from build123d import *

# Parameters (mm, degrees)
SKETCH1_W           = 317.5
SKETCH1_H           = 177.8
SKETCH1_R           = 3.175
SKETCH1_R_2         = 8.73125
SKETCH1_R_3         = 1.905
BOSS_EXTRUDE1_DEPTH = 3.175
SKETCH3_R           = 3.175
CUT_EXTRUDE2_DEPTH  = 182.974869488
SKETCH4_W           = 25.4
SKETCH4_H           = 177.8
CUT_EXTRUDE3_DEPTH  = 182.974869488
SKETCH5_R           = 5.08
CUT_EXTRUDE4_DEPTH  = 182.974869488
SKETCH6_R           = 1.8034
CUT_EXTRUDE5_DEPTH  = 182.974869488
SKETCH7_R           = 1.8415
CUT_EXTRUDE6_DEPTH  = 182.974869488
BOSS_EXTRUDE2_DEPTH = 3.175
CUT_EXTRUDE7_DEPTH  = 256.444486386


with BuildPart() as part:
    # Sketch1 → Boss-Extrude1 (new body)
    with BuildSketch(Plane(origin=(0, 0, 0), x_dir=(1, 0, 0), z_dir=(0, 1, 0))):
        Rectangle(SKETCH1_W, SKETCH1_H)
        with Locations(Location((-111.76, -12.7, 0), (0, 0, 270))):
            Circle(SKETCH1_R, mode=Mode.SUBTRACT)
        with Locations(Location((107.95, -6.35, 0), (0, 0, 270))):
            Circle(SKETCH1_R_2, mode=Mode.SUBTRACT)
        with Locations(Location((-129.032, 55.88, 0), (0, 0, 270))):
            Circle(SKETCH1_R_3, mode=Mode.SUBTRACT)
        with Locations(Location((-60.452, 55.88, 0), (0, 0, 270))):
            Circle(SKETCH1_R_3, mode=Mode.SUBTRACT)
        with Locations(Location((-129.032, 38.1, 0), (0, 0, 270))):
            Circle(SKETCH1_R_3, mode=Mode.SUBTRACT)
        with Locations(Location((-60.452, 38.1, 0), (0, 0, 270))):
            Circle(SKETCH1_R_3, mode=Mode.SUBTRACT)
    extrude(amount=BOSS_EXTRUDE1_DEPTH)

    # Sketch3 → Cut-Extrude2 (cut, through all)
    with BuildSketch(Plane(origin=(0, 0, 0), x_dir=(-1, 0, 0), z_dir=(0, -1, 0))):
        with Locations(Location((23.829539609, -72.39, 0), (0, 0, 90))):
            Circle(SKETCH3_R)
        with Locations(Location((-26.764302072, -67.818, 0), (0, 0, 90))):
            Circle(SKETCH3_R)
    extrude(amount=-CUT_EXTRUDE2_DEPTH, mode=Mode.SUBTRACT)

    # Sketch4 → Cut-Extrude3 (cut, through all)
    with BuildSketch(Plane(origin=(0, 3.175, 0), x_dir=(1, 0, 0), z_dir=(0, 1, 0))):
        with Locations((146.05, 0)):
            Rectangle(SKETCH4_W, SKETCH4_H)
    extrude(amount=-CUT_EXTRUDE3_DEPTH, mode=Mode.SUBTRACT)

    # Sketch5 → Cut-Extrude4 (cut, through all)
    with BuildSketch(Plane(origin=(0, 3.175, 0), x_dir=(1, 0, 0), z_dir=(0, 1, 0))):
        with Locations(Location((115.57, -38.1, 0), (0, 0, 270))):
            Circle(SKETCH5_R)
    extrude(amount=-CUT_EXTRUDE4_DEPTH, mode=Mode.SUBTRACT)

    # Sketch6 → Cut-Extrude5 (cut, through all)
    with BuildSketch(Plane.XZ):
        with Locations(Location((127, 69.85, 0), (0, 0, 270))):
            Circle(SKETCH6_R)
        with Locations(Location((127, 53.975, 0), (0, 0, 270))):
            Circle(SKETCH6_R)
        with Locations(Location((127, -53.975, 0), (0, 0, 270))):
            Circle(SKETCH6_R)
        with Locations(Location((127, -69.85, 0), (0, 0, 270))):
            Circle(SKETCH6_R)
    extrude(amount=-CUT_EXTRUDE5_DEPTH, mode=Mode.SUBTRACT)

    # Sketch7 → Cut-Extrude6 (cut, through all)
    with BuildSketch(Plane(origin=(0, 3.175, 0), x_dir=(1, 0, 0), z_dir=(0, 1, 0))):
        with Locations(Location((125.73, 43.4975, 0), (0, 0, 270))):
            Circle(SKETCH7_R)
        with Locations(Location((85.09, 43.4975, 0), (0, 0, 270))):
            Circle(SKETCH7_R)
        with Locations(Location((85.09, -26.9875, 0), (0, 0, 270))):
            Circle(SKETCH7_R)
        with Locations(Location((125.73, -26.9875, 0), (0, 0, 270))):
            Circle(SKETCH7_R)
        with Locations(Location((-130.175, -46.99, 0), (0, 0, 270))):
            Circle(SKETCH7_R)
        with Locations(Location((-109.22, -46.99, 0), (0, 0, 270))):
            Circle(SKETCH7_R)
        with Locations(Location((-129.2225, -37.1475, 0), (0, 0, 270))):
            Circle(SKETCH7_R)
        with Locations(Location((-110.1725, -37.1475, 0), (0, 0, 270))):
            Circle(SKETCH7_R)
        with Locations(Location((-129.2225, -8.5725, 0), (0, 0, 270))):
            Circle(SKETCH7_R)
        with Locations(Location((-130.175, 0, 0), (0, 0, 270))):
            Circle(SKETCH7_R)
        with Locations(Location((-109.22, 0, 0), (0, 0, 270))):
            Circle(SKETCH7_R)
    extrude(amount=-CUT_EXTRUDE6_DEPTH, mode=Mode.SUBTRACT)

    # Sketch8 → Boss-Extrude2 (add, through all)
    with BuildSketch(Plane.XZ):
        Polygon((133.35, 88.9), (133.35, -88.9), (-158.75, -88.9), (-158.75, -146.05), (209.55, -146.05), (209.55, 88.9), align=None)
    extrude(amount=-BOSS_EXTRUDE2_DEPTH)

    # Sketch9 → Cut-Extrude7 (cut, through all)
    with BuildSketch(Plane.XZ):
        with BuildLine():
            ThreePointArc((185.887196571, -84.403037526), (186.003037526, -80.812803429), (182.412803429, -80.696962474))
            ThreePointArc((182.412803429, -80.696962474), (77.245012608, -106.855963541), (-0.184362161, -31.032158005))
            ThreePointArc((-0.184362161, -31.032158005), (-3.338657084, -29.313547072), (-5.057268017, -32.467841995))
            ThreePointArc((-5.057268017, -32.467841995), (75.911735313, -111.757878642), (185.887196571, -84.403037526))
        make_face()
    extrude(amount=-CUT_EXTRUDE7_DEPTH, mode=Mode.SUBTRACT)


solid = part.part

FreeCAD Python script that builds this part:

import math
import FreeCAD as App
import Part
import Sketcher
Q = App.Units.Quantity

doc = App.newDocument("Part")
params = doc.addObject("Spreadsheet::Sheet", "Params")
for row, (alias, value) in enumerate([
    ("sketch1_diameter", "0.25 in"),
    ("sketch1_diameter2", "0.15 in"),
    ("sketch1_height", "7 in"),
    ("sketch1_diameter3", "0.6875 in"),
    ("sketch1_width", "12.5 in"),
    ("pad1_length", "0.125 in"),
    ("sketch2_diameter", "0.25 in"),
    ("sketch3_width", "1 in"),
    ("sketch3_height", "7 in"),
    ("sketch4_diameter", "0.4 in"),
    ("sketch5_diameter", "0.142 in"),
    ("sketch6_diameter", "0.145 in"),
    ("sketch7_width", "3 in"),
    ("sketch7_height", "7 in"),
    ("sketch7_width2", "11.5 in"),
    ("sketch7_height2", "2.25 in"),
    ("sketch8_radius", "0.1 in"),
    ("sketch8_radius2", "4.375 in"),
], start=1):
    params.set(f"A{row}", alias)
    params.set(f"B{row}", "=" + value)
    params.setAlias(f"B{row}", alias)

body = doc.addObject("PartDesign::Body", "Body")

sketch1 = body.newObject("Sketcher::SketchObject", "Sketch")
sketch1.AttachmentSupport = (doc.getObject("XZ_Plane"), [""])
sketch1.MapMode = "FlatFace"
sketch1.addGeometry([
    Part.LineSegment(App.Vector(-158.8, -88.9, 0), App.Vector(-158.8, 88.9, 0)),
    Part.LineSegment(App.Vector(-158.8, 88.9, 0), App.Vector(158.8, 88.9, 0)),
    Part.LineSegment(App.Vector(158.8, 88.9, 0), App.Vector(158.8, -88.9, 0)),
    Part.LineSegment(App.Vector(158.8, -88.9, 0), App.Vector(-158.8, -88.9, 0)),
    Part.Circle(App.Vector(-111.8, 12.7, 0), App.Vector(0, 0, 1), 3.2),
    Part.Circle(App.Vector(108, 6.3, 0), App.Vector(0, 0, 1), 8.7),
    Part.Circle(App.Vector(-129, -38.1, 0), App.Vector(0, 0, 1), 1.9),
    Part.Circle(App.Vector(-60.5, -38.1, 0), App.Vector(0, 0, 1), 1.9),
    Part.Circle(App.Vector(-129, -55.9, 0), App.Vector(0, 0, 1), 1.9),
    Part.Circle(App.Vector(-60.5, -55.9, 0), App.Vector(0, 0, 1), 1.9),
], False)
sketch1.addConstraint([
    Sketcher.Constraint("Coincident", 0, 2, 1, 1),
    Sketcher.Constraint("Coincident", 1, 2, 2, 1),
    Sketcher.Constraint("Coincident", 2, 2, 3, 1),
    Sketcher.Constraint("Coincident", 3, 2, 0, 1),
    Sketcher.Constraint("Vertical", 0),
    Sketcher.Constraint("Horizontal", 1),
    Sketcher.Constraint("Vertical", 2),
    Sketcher.Constraint("Horizontal", 3),
    Sketcher.Constraint("Equal", 6, 7),
    Sketcher.Constraint("Equal", 7, 8),
    Sketcher.Constraint("Equal", 8, 9),
    Sketcher.Constraint("Symmetric", 0, 2, 2, 2, -1, 1),
    Sketcher.Constraint("Horizontal", 6, 3, 7, 3),
    Sketcher.Constraint("Horizontal", 8, 3, 9, 3),
    Sketcher.Constraint("Vertical", 6, 3, 8, 3),
    Sketcher.Constraint("Vertical", 7, 3, 9, 3),
    Sketcher.Constraint("Diameter", 4, Q("0.25 in")),
    Sketcher.Constraint("Diameter", 6, Q("0.15 in")),
    Sketcher.Constraint("DistanceY", 0, 1, 0, 2, Q("7 in")),
    Sketcher.Constraint("Diameter", 5, Q("0.6875 in")),
    Sketcher.Constraint("DistanceX", 1, 1, 1, 2, Q("12.5 in")),
    Sketcher.Constraint("DistanceY", 6, 3, 4, 3, Q("2 in")),
    Sketcher.Constraint("DistanceY", 4, 3, 0, 2, Q("3 in")),
    Sketcher.Constraint("DistanceX", 5, 3, 1, 2, Q("2 in")),
    Sketcher.Constraint("DistanceX", 4, 3, -1, 1, Q("4.4 in")),
    Sketcher.Constraint("DistanceY", 8, 3, -1, 1, Q("2.2 in")),
    Sketcher.Constraint("DistanceX", 6, 3, 7, 3, Q("2.7 in")),
    Sketcher.Constraint("DistanceY", -1, 1, 5, 3, Q("0.25 in")),
    Sketcher.Constraint("DistanceX", 6, 3, -1, 1, Q("5.08 in")),
])
sketch1.setExpression("Constraints[16]", "Params.sketch1_diameter")
sketch1.setExpression("Constraints[17]", "Params.sketch1_diameter2")
sketch1.setExpression("Constraints[18]", "Params.sketch1_height")
sketch1.setExpression("Constraints[19]", "Params.sketch1_diameter3")
sketch1.setExpression("Constraints[20]", "Params.sketch1_width")
pad1 = body.newObject("PartDesign::Pad", "Pad")
pad1.Profile = sketch1
pad1.setExpression("Length", "Params.pad1_length")
pad1.Reversed = True

sketch2 = body.newObject("Sketcher::SketchObject", "Sketch001")
sketch2.AttachmentSupport = (doc.getObject("XZ_Plane"), [""])
sketch2.MapMode = "FlatFace"
sketch2.addGeometry([
    Part.Circle(App.Vector(-23.8, 72.4, 0), App.Vector(0, 0, 1), 3.2),
    Part.Circle(App.Vector(26.8, 67.8, 0), App.Vector(0, 0, 1), 3.2),
], False)
sketch2.addConstraint([
    Sketcher.Constraint("Equal", 0, 1),
    Sketcher.Constraint("Diameter", 0, Q("0.25 in")),
    Sketcher.Constraint("DistanceY", -1, 1, 0, 3, Q("2.85 in")),
    Sketcher.Constraint("DistanceY", -1, 1, 1, 3, Q("2.67 in")),
    Sketcher.Constraint("DistanceX", 0, 3, -1, 1, Q("23.82954 mm")),
    Sketcher.Constraint("DistanceX", 0, 3, 1, 3, Q("50.593842 mm")),
])
sketch2.setExpression("Constraints[1]", "Params.sketch2_diameter")
pocket1 = body.newObject("PartDesign::Pocket", "Pocket")
pocket1.Profile = sketch2
pocket1.Type = "ThroughAll"

sketch3 = body.newObject("Sketcher::SketchObject", "Sketch002")
sketch3.AttachmentSupport = (doc.getObject("XZ_Plane"), [""])
sketch3.MapMode = "FlatFace"
sketch3.AttachmentOffset = App.Placement(App.Vector(0, 0, -0.125 * 25.4), App.Rotation())
sketch3.addGeometry([
    Part.LineSegment(App.Vector(133, -89, 0), App.Vector(133, 89, 0)),
    Part.LineSegment(App.Vector(133, 89, 0), App.Vector(159, 89, 0)),
    Part.LineSegment(App.Vector(159, 89, 0), App.Vector(159, -89, 0)),
    Part.LineSegment(App.Vector(159, -89, 0), App.Vector(133, -89, 0)),
], False)
sketch3.addConstraint([
    Sketcher.Constraint("Coincident", 0, 2, 1, 1),
    Sketcher.Constraint("Coincident", 1, 2, 2, 1),
    Sketcher.Constraint("Coincident", 2, 2, 3, 1),
    Sketcher.Constraint("Coincident", 3, 2, 0, 1),
    Sketcher.Constraint("Vertical", 0),
    Sketcher.Constraint("Horizontal", 1),
    Sketcher.Constraint("Vertical", 2),
    Sketcher.Constraint("Horizontal", 3),
    Sketcher.Constraint("DistanceX", 1, 1, 1, 2, Q("1 in")),
    Sketcher.Constraint("DistanceY", 0, 1, 0, 2, Q("7 in")),
    Sketcher.Constraint("DistanceY", -1, 1, 0, 2, Q("3.5 in")),
    Sketcher.Constraint("DistanceX", -1, 1, 0, 2, Q("5.25 in")),
])
sketch3.setExpression("Constraints[8]", "Params.sketch3_width")
sketch3.setExpression("Constraints[9]", "Params.sketch3_height")
pocket2 = body.newObject("PartDesign::Pocket", "Pocket001")
pocket2.Profile = sketch3
pocket2.Type = "ThroughAll"
pocket2.Reversed = True

sketch4 = body.newObject("Sketcher::SketchObject", "Sketch003")
sketch4.AttachmentSupport = (doc.getObject("XZ_Plane"), [""])
sketch4.MapMode = "FlatFace"
sketch4.AttachmentOffset = App.Placement(App.Vector(0, 0, -0.125 * 25.4), App.Rotation())
sketch4.addGeometry(Part.Circle(App.Vector(116, 38, 0), App.Vector(0, 0, 1), 5), False)
sketch4.addConstraint([
    Sketcher.Constraint("Diameter", 0, Q("0.4 in")),
    Sketcher.Constraint("DistanceY", -1, 1, 0, 3, Q("1.5 in")),
    Sketcher.Constraint("DistanceX", -1, 1, 0, 3, Q("4.55 in")),
])
sketch4.setExpression("Constraints[0]", "Params.sketch4_diameter")
pocket3 = body.newObject("PartDesign::Pocket", "Pocket002")
pocket3.Profile = sketch4
pocket3.Type = "ThroughAll"
pocket3.Reversed = True

sketch5 = body.newObject("Sketcher::SketchObject", "Sketch004")
sketch5.AttachmentSupport = (doc.getObject("XZ_Plane"), [""])
sketch5.MapMode = "FlatFace"
sketch5.addGeometry([
    Part.Circle(App.Vector(127, 69.8, 0), App.Vector(0, 0, 1), 1.8),
    Part.Circle(App.Vector(127, 54, 0), App.Vector(0, 0, 1), 1.8),
    Part.Circle(App.Vector(127, -54, 0), App.Vector(0, 0, 1), 1.8),
    Part.Circle(App.Vector(127, -69.8, 0), App.Vector(0, 0, 1), 1.8),
], False)
sketch5.addConstraint([
    Sketcher.Constraint("Equal", 0, 1),
    Sketcher.Constraint("Equal", 1, 2),
    Sketcher.Constraint("Equal", 2, 3),
    Sketcher.Constraint("Symmetric", 1, 3, 2, 3, -1),
    Sketcher.Constraint("Symmetric", 0, 3, 3, 3, -1),
    Sketcher.Constraint("Vertical", 0, 3, 1, 3),
    Sketcher.Constraint("Diameter", 0, Q("0.142 in")),
    Sketcher.Constraint("DistanceX", -1, 1, 0, 3, Q("5 in")),
    Sketcher.Constraint("DistanceY", 3, 3, 0, 3, Q("5.5 in")),
    Sketcher.Constraint("DistanceY", 2, 3, 1, 3, Q("4.25 in")),
])
sketch5.setExpression("Constraints[6]", "Params.sketch5_diameter")
pocket4 = body.newObject("PartDesign::Pocket", "Pocket003")
pocket4.Profile = sketch5
pocket4.Type = "ThroughAll"

sketch6 = body.newObject("Sketcher::SketchObject", "Sketch005")
sketch6.AttachmentSupport = (doc.getObject("XZ_Plane"), [""])
sketch6.MapMode = "FlatFace"
sketch6.AttachmentOffset = App.Placement(App.Vector(0, 0, -0.125 * 25.4), App.Rotation())
sketch6.addGeometry([
    Part.Circle(App.Vector(125.7, -43.5, 0), App.Vector(0, 0, 1), 1.8),
    Part.Circle(App.Vector(85.1, -43.5, 0), App.Vector(0, 0, 1), 1.8),
    Part.Circle(App.Vector(85.1, 27, 0), App.Vector(0, 0, 1), 1.8),
    Part.Circle(App.Vector(125.7, 27, 0), App.Vector(0, 0, 1), 1.8),
    Part.Circle(App.Vector(-130.2, 47, 0), App.Vector(0, 0, 1), 1.8),
    Part.Circle(App.Vector(-109.2, 47, 0), App.Vector(0, 0, 1), 1.8),
    Part.Circle(App.Vector(-129.2, 37.1, 0), App.Vector(0, 0, 1), 1.8),
    Part.Circle(App.Vector(-110.2, 37.1, 0), App.Vector(0, 0, 1), 1.8),
    Part.Circle(App.Vector(-129.2, 8.6, 0), App.Vector(0, 0, 1), 1.8),
    Part.Circle(App.Vector(-130.2, 0, 0), App.Vector(0, 0, 1), 1.8),
    Part.Circle(App.Vector(-109.2, 0, 0), App.Vector(0, 0, 1), 1.8),
], False)
sketch6.addConstraint([
    Sketcher.Constraint("Equal", 0, 1),
    Sketcher.Constraint("Equal", 1, 2),
    Sketcher.Constraint("Equal", 2, 3),
    Sketcher.Constraint("Equal", 3, 4),
    Sketcher.Constraint("Equal", 4, 5),
    Sketcher.Constraint("Equal", 5, 6),
    Sketcher.Constraint("Equal", 6, 7),
    Sketcher.Constraint("Equal", 7, 8),
    Sketcher.Constraint("Equal", 8, 9),
    Sketcher.Constraint("Equal", 9, 10),
    Sketcher.Constraint("PointOnObject", 9, 3, -1),
    Sketcher.Constraint("PointOnObject", 10, 3, -1),
    Sketcher.Constraint("Horizontal", 0, 3, 1, 3),
    Sketcher.Constraint("Horizontal", 2, 3, 3, 3),
    Sketcher.Constraint("Horizontal", 4, 3, 5, 3),
    Sketcher.Constraint("Horizontal", 6, 3, 7, 3),
    Sketcher.Constraint("Vertical", 1, 3, 2, 3),
    Sketcher.Constraint("Vertical", 0, 3, 3, 3),
    Sketcher.Constraint("Vertical", 6, 3, 8, 3),
    Sketcher.Constraint("Vertical", 4, 3, 9, 3),
    Sketcher.Constraint("Vertical", 5, 3, 10, 3),
    Sketcher.Constraint("Diameter", 0, Q("0.145 in")),
    Sketcher.Constraint("DistanceX", 5, 3, -1, 1, Q("4.3 in")),
    Sketcher.Constraint("DistanceX", 1, 3, 0, 3, Q("1.6 in")),
    Sketcher.Constraint("DistanceY", 2, 3, 6, 3, Q("0.4 in")),
    Sketcher.Constraint("DistanceX", -1, 1, 0, 3, Q("4.95 in")),
    Sketcher.Constraint("DistanceY", -1, 1, 4, 3, Q("1.85 in")),
    Sketcher.Constraint("DistanceX", 6, 3, 7, 3, Q("0.75 in")),
    Sketcher.Constraint("DistanceY", -1, 1, 2, 3, Q("1.0625 in")),
    Sketcher.Constraint("DistanceX", 4, 3, -1, 1, Q("5.125 in")),
    Sketcher.Constraint("DistanceY", 1, 3, 2, 3, Q("2.775 in")),
    Sketcher.Constraint("DistanceX", 6, 3, 2, 3, Q("8.4375 in")),
    Sketcher.Constraint("DistanceY", 8, 3, 6, 3, Q("1.125 in")),
])
sketch6.setExpression("Constraints[21]", "Params.sketch6_diameter")
pocket5 = body.newObject("PartDesign::Pocket", "Pocket004")
pocket5.Profile = sketch6
pocket5.Type = "ThroughAll"
pocket5.Reversed = True

sketch7 = body.newObject("Sketcher::SketchObject", "Sketch006")
sketch7.AttachmentSupport = (doc.getObject("XZ_Plane"), [""])
sketch7.MapMode = "FlatFace"
sketch7.addGeometry([
    Part.LineSegment(App.Vector(133, 89, 0), App.Vector(133, -89, 0)),
    Part.LineSegment(App.Vector(133, -89, 0), App.Vector(-159, -89, 0)),
    Part.LineSegment(App.Vector(-159, -89, 0), App.Vector(-159, -146, 0)),
    Part.LineSegment(App.Vector(-159, -146, 0), App.Vector(210, -146, 0)),
    Part.LineSegment(App.Vector(210, -146, 0), App.Vector(210, 89, 0)),
    Part.LineSegment(App.Vector(210, 89, 0), App.Vector(133, 89, 0)),
], False)
sketch7.addConstraint([
    Sketcher.Constraint("Coincident", 0, 2, 1, 1),
    Sketcher.Constraint("Coincident", 1, 2, 2, 1),
    Sketcher.Constraint("Coincident", 2, 2, 3, 1),
    Sketcher.Constraint("Coincident", 3, 2, 4, 1),
    Sketcher.Constraint("Coincident", 4, 2, 5, 1),
    Sketcher.Constraint("Coincident", 5, 2, 0, 1),
    Sketcher.Constraint("Vertical", 0),
    Sketcher.Constraint("Horizontal", 1),
    Sketcher.Constraint("Vertical", 2),
    Sketcher.Constraint("Horizontal", 3),
    Sketcher.Constraint("Vertical", 4),
    Sketcher.Constraint("Horizontal", 5),
    Sketcher.Constraint("DistanceX", 5, 2, 5, 1, Q("3 in")),
    Sketcher.Constraint("DistanceY", 0, 2, 0, 1, Q("7 in")),
    Sketcher.Constraint("DistanceX", 1, 2, 1, 1, Q("11.5 in")),
    Sketcher.Constraint("DistanceY", 2, 2, 2, 1, Q("2.25 in")),
    Sketcher.Constraint("DistanceY", 0, 2, -1, 1, Q("3.5 in")),
    Sketcher.Constraint("DistanceX", -1, 1, 0, 2, Q("5.25 in")),
])
sketch7.setExpression("Constraints[12]", "Params.sketch7_width")
sketch7.setExpression("Constraints[13]", "Params.sketch7_height")
sketch7.setExpression("Constraints[14]", "Params.sketch7_width2")
sketch7.setExpression("Constraints[15]", "Params.sketch7_height2")
pad2 = body.newObject("PartDesign::Pad", "Pad001")
pad2.Profile = sketch7
pad2.Type = "UpToLast"
pad2.Reversed = True

sketch8 = body.newObject("Sketcher::SketchObject", "Sketch007")
sketch8.AttachmentSupport = (doc.getObject("XZ_Plane"), [""])
sketch8.MapMode = "FlatFace"
sketch8.addGeometry([
    Part.ArcOfCircle(Part.Circle(App.Vector(184.2, -82.5, 0), App.Vector(0, 0, 1), 2.5), math.radians(-47), math.radians(133)),
    Part.ArcOfCircle(Part.Circle(App.Vector(106.4, 0.4, 0), App.Vector(0, 0, 1), 111.1), math.radians(-164), math.radians(-47)),
    Part.ArcOfCircle(Part.Circle(App.Vector(-2.6, -31.8, 0), App.Vector(0, 0, 1), 2.5), math.radians(16), math.radians(196)),
    Part.ArcOfCircle(Part.Circle(App.Vector(106.4, 0.4, 0), App.Vector(0, 0, 1), 116.2), math.radians(-164), math.radians(-47)),
], False)
sketch8.addConstraint([
    Sketcher.Constraint("Tangent", 0, 2, 1, 2),
    Sketcher.Constraint("Tangent", 1, 1, 2, 1),
    Sketcher.Constraint("Tangent", 2, 2, 3, 1),
    Sketcher.Constraint("Tangent", 3, 2, 0, 1),
    Sketcher.Constraint("Coincident", 3, 3, 1, 3),
    Sketcher.Constraint("Radius", 0, Q("0.1 in")),
    Sketcher.Constraint("Radius", 1, Q("4.375 in")),
    Sketcher.Constraint("DistanceY", 0, 3, 2, 3, Q("2 in")),
    Sketcher.Constraint("DistanceX", -1, 1, 0, 3, Q("7.25 in")),
    Sketcher.Constraint("DistanceY", 0, 3, -1, 1, Q("3.25 in")),
    Sketcher.Constraint("DistanceY", -1, 1, 1, 3, Q("0.373429 mm")),
])
sketch8.setExpression("Constraints[5]", "Params.sketch8_radius")
sketch8.setExpression("Constraints[6]", "Params.sketch8_radius2")
pocket6 = body.newObject("PartDesign::Pocket", "Pocket005")
pocket6.Profile = sketch8
pocket6.Type = "ThroughAll"

doc.recompute()
